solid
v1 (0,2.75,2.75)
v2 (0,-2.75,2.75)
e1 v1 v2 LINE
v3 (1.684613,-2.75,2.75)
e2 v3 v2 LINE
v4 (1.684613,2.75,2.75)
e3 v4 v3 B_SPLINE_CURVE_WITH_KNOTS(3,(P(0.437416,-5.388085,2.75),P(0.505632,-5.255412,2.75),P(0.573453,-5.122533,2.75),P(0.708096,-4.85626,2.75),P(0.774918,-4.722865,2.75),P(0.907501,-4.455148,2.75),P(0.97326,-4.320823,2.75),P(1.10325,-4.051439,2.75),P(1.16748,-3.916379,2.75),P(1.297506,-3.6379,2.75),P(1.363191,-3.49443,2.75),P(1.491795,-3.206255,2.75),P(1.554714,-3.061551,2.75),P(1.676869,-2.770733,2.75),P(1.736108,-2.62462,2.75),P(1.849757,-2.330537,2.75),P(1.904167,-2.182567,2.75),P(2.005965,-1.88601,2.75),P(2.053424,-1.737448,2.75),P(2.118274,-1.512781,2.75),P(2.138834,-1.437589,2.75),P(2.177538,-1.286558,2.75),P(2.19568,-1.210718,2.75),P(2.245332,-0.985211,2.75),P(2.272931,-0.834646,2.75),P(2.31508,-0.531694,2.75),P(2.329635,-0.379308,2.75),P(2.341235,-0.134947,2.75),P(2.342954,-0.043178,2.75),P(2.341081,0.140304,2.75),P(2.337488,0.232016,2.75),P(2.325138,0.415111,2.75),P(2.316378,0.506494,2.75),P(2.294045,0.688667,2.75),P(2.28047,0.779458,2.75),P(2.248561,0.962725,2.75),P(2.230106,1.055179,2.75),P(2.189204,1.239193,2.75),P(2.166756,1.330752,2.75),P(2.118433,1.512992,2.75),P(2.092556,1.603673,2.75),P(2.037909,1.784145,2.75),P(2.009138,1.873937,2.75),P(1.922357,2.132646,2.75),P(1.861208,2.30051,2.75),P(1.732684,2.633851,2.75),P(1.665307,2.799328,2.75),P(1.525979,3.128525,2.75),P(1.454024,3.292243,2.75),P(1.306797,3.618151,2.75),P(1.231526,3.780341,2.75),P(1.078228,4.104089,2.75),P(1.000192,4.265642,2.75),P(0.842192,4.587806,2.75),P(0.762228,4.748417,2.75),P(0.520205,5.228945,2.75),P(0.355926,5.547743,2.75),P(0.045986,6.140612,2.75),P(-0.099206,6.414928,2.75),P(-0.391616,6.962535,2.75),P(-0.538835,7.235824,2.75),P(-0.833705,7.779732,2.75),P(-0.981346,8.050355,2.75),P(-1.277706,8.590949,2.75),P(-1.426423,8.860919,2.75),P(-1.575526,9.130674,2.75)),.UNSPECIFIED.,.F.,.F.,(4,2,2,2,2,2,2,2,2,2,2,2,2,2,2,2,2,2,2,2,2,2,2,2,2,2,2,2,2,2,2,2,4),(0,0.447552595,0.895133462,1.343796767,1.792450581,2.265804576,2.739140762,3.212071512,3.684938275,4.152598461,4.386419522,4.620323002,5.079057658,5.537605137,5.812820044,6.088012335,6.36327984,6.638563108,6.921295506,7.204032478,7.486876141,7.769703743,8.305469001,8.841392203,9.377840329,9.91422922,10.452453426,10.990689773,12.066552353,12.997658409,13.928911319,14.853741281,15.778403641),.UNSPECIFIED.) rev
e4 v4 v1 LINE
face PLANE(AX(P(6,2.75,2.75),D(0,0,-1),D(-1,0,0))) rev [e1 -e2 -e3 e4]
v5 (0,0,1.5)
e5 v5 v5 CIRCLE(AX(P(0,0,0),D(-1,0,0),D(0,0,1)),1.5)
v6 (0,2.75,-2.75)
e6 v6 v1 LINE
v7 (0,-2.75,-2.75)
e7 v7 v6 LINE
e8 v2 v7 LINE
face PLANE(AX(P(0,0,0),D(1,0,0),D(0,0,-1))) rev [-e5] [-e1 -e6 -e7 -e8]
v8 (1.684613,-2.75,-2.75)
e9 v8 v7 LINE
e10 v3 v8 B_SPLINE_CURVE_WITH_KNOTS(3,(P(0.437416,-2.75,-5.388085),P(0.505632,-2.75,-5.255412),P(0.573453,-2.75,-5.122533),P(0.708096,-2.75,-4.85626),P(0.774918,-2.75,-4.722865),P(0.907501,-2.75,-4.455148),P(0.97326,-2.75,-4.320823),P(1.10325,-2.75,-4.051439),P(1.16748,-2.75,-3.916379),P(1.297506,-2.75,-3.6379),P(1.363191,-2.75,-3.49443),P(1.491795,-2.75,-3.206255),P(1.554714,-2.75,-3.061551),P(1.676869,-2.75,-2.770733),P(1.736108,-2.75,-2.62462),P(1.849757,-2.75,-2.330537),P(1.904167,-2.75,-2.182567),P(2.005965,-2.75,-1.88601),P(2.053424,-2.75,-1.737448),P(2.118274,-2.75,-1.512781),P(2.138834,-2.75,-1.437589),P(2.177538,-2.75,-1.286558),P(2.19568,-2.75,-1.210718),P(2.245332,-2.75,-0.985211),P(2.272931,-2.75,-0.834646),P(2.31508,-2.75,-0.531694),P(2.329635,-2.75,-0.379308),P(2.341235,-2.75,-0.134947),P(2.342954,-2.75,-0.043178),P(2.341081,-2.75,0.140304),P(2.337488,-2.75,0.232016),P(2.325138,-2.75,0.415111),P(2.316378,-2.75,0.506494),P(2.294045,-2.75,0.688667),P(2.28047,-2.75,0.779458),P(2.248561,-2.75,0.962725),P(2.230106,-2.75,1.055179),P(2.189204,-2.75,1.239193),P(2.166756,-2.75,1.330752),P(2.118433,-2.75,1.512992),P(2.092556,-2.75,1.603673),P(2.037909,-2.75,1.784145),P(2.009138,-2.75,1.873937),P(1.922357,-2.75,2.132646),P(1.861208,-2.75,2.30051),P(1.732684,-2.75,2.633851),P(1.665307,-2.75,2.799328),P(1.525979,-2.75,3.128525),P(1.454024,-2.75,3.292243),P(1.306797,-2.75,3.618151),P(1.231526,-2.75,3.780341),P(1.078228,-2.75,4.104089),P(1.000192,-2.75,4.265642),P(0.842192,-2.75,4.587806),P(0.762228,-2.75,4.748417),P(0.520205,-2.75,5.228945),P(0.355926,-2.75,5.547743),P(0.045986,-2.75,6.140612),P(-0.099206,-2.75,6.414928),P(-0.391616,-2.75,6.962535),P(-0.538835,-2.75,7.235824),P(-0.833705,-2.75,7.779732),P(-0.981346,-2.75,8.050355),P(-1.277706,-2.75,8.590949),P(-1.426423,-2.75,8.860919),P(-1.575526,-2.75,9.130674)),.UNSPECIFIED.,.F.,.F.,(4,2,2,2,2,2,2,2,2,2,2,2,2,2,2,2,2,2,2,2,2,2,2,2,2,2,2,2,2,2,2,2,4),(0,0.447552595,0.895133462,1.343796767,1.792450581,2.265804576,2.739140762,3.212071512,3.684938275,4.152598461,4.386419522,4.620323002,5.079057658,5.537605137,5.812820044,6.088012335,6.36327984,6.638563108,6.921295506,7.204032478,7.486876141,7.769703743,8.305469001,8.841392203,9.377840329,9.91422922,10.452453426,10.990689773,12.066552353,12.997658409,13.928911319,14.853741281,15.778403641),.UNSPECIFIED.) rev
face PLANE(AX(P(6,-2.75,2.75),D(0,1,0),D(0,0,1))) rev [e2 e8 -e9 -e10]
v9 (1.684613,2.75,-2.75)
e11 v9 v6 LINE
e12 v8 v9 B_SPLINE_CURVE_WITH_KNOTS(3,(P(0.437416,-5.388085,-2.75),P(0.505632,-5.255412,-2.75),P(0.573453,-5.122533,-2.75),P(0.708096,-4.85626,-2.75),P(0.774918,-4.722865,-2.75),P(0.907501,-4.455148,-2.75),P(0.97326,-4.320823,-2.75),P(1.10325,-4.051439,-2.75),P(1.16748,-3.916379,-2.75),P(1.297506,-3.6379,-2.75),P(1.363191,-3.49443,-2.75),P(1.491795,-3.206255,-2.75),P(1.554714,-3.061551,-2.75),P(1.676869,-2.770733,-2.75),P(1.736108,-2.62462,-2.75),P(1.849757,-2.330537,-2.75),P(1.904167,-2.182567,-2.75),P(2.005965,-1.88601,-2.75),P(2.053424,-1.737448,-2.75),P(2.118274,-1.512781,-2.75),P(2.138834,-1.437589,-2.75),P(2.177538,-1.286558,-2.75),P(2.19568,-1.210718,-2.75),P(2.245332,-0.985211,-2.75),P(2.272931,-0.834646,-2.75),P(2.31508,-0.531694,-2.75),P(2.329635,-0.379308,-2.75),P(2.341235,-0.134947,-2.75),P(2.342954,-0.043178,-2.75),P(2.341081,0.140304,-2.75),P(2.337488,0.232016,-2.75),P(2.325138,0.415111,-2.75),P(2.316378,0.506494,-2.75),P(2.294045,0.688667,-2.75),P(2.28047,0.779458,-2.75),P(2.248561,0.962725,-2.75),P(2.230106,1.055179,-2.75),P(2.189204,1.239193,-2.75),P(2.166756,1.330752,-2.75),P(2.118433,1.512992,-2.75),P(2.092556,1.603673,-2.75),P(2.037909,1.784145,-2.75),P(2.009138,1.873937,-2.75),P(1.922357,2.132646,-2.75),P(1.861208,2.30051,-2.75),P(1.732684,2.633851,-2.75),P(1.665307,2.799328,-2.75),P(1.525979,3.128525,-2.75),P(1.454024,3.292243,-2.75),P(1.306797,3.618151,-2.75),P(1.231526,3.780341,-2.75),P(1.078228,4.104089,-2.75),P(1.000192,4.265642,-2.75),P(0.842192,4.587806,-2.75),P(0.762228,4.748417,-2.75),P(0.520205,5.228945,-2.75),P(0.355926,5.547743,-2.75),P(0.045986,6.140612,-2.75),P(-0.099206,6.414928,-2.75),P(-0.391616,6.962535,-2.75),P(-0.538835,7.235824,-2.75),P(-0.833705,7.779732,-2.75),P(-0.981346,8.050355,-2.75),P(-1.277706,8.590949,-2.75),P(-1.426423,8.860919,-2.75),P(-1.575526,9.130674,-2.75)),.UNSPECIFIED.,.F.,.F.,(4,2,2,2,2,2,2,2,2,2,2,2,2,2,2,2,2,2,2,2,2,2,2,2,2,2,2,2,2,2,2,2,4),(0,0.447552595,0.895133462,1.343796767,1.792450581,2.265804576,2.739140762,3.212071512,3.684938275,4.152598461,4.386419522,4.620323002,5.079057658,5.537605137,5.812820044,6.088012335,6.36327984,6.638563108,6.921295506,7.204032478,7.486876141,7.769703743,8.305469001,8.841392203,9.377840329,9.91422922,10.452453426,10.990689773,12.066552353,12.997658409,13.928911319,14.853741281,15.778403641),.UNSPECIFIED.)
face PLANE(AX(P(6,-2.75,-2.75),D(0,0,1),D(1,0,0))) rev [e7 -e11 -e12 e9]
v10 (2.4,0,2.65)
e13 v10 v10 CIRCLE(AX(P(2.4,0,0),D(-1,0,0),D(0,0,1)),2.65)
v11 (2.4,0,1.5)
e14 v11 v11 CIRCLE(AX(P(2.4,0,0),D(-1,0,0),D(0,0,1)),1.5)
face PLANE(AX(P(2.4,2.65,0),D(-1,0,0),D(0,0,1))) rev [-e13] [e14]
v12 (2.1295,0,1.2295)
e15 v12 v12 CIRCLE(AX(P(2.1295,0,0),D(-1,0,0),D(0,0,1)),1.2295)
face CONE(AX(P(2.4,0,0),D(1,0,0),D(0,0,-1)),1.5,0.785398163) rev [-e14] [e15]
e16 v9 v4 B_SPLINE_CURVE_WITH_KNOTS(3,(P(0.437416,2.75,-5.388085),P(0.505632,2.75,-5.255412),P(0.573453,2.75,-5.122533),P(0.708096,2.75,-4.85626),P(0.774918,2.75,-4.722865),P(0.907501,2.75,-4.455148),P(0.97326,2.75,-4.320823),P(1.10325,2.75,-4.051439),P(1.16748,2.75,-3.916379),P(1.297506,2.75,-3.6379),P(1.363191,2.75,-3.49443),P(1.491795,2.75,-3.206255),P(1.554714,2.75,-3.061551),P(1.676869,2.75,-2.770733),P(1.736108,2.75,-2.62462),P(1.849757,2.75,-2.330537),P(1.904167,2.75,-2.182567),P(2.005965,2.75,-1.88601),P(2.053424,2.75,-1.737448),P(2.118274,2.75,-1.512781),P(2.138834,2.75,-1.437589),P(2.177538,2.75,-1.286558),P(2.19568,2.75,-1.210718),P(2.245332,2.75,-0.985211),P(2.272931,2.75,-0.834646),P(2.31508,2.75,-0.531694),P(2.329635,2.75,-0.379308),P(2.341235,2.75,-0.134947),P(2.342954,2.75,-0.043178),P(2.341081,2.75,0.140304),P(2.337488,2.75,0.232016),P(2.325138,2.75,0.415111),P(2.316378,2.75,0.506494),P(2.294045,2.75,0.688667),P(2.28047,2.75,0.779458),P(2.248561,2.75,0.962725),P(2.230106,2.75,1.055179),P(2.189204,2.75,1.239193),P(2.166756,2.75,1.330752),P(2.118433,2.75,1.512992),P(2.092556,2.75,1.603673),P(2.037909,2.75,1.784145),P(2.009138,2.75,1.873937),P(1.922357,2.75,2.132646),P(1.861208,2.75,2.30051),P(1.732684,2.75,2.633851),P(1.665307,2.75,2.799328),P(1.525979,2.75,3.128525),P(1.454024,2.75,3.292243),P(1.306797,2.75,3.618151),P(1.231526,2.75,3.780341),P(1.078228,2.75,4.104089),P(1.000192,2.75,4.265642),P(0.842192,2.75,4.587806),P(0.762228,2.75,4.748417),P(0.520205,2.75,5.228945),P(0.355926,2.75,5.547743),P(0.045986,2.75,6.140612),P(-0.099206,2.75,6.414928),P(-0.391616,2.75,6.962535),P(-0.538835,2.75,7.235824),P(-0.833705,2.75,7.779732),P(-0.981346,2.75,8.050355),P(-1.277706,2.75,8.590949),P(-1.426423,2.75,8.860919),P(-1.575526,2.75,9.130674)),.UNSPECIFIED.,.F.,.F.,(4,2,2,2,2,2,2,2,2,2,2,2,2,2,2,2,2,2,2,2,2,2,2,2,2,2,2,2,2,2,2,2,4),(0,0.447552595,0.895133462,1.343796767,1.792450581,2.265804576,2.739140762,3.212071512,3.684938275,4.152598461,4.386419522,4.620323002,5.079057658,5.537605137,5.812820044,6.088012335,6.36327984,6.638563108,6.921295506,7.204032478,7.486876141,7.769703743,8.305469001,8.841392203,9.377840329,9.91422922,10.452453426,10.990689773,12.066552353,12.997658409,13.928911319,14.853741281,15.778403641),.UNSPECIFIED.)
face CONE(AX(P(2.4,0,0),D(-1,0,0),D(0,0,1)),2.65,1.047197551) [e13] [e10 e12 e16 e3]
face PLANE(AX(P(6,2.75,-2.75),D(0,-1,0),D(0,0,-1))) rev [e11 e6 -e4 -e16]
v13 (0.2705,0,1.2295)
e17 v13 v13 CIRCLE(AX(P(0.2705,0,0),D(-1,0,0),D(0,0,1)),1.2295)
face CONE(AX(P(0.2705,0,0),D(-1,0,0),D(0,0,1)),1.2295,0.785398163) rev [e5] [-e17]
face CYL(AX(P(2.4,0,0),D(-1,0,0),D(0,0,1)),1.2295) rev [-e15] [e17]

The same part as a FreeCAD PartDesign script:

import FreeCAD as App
import Part
import Sketcher
from FreeCAD import Vector
Q = App.Units.Quantity

doc = App.newDocument("Part")
body = doc.addObject("PartDesign::Body", "Body")

sketch1 = body.newObject("Sketcher::SketchObject", "Sketch")
sketch1.AttachmentSupport = (doc.getObject("XY_Plane"), [""])
sketch1.MapMode = "FlatFace"
sketch1.addGeometry([
    Part.LineSegment(Vector(0, 3.9, 0), Vector(0, 0, 0)),
    Part.LineSegment(Vector(0, 0, 0), Vector(2.4, 0, 0)),
    Part.LineSegment(Vector(2.4, 0, 0), Vector(2.4, 2.6, 0)),
    Part.LineSegment(Vector(2.4, 2.6, 0), Vector(1.7, 3.9, 0)),
    Part.LineSegment(Vector(1.7, 3.9, 0), Vector(0, 3.9, 0)),
], False)
sketch1.addConstraint([
    Sketcher.Constraint("Coincident", 0, 2, 1, 1),
    Sketcher.Constraint("Coincident", 1, 2, 2, 1),
    Sketcher.Constraint("Coincident", 2, 2, 3, 1),
    Sketcher.Constraint("Coincident", 3, 2, 4, 1),
    Sketcher.Constraint("Coincident", 4, 2, 0, 1),
    Sketcher.Constraint("Vertical", 0),
    Sketcher.Constraint("Horizontal", 1),
    Sketcher.Constraint("Vertical", 2),
    Sketcher.Constraint("Horizontal", 4),
    Sketcher.Constraint("Coincident", 0, 2, -1, 1),
    Sketcher.Constraint("Angle", 3, Q("120 deg")),
    Sketcher.Constraint("DistanceX", 1, 1, 1, 2, Q("2.4 mm")),
    Sketcher.Constraint("DistanceY", 0, 2, 0, 1, Q("3.9 mm")),
    Sketcher.Constraint("DistanceY", 2, 1, 2, 2, Q("2.65 mm")),
])
revolution = body.newObject("PartDesign::Revolution", "Revolution")
revolution.Profile = sketch1
revolution.ReferenceAxis = (sketch1, ["H_Axis"])
revolution.Angle = 360

sketch2 = body.newObject("Sketcher::SketchObject", "Sketch001")
sketch2.AttachmentSupport = (doc.getObject("YZ_Plane"), [""])
sketch2.MapMode = "FlatFace"
sketch2.addGeometry([
    Part.Circle(Vector(0, 0, 0), Vector(0, 0, 1), 5),
    Part.LineSegment(Vector(-3, -3, 0), Vector(-3, 3, 0)),
    Part.LineSegment(Vector(-3, 3, 0), Vector(3, 3, 0)),
    Part.LineSegment(Vector(3, 3, 0), Vector(3, -3, 0)),
    Part.LineSegment(Vector(3, -3, 0), Vector(-3, -3, 0)),
], False)
sketch2.addConstraint([
    Sketcher.Constraint("Coincident", 1, 2, 2, 1),
    Sketcher.Constraint("Coincident", 2, 2, 3, 1),
    Sketcher.Constraint("Coincident", 3, 2, 4, 1),
    Sketcher.Constraint("Coincident", 4, 2, 1, 1),
    Sketcher.Constraint("Vertical", 1),
    Sketcher.Constraint("Horizontal", 2),
    Sketcher.Constraint("Vertical", 3),
    Sketcher.Constraint("Horizontal", 4),
    Sketcher.Constraint("Coincident", 0, 3, -1, 1),
    Sketcher.Constraint("Symmetric", 1, 2, 3, 2, -1, 1),
    Sketcher.Constraint("Equal", 4, 1),
    Sketcher.Constraint("Diameter", 0, Q("10 mm")),
    Sketcher.Constraint("DistanceX", 2, 1, 2, 2, Q("5.5 mm")),
])
pocket1 = body.newObject("PartDesign::Pocket", "Pocket")
pocket1.Profile = sketch2
pocket1.Length = 6
pocket1.Reversed = True

sketch3 = body.newObject("Sketcher::SketchObject", "Sketch002")
sketch3.AttachmentSupport = (doc.getObject("XY_Plane"), [""])
sketch3.MapMode = "FlatFace"
sketch3.addGeometry([
    Part.LineSegment(Vector(0, 1.5, 0), Vector(0, 0, 0)),
    Part.LineSegment(Vector(0, 0, 0), Vector(2.4, 0, 0)),
    Part.LineSegment(Vector(2.4, 0, 0), Vector(2.4, 1.5, 0)),
    Part.LineSegment(Vector(2.4, 1.5, 0), Vector(2.13, 1.23, 0)),
    Part.LineSegment(Vector(2.13, 1.23, 0), Vector(0.27, 1.23, 0)),
    Part.LineSegment(Vector(0.27, 1.23, 0), Vector(0, 1.5, 0)),
], False)
sketch3.addConstraint([
    Sketcher.Constraint("Coincident", 0, 2, 1, 1),
    Sketcher.Constraint("Coincident", 1, 2, 2, 1),
    Sketcher.Constraint("Coincident", 2, 2, 3, 1),
    Sketcher.Constraint("Coincident", 3, 2, 4, 1),
    Sketcher.Constraint("Coincident", 4, 2, 5, 1),
    Sketcher.Constraint("Coincident", 5, 2, 0, 1),
    Sketcher.Constraint("Vertical", 0),
    Sketcher.Constraint("Horizontal", 1),
    Sketcher.Constraint("Vertical", 2),
    Sketcher.Constraint("Horizontal", 4),
    Sketcher.Constraint("Coincident", 0, 2, -1, 1),
    Sketcher.Constraint("Perpendicular", 3, 5),
    Sketcher.Constraint("Horizontal", 2, 2, 5, 2),
    Sketcher.Constraint("Equal", 3, 5),
    Sketcher.Constraint("DistanceX", 1, 1, 1, 2, Q("2.4 mm")),
    Sketcher.Constraint("DistanceY", 0, 2, 0, 1, Q("1.5 mm")),
    Sketcher.Constraint("DistanceX", 4, 2, 4, 1, Q("1.859 mm")),
])
groove = body.newObject("PartDesign::Groove", "Groove")
groove.Profile = sketch3
groove.ReferenceAxis = (sketch3, ["H_Axis"])
groove.Angle = 360

doc.recompute()
